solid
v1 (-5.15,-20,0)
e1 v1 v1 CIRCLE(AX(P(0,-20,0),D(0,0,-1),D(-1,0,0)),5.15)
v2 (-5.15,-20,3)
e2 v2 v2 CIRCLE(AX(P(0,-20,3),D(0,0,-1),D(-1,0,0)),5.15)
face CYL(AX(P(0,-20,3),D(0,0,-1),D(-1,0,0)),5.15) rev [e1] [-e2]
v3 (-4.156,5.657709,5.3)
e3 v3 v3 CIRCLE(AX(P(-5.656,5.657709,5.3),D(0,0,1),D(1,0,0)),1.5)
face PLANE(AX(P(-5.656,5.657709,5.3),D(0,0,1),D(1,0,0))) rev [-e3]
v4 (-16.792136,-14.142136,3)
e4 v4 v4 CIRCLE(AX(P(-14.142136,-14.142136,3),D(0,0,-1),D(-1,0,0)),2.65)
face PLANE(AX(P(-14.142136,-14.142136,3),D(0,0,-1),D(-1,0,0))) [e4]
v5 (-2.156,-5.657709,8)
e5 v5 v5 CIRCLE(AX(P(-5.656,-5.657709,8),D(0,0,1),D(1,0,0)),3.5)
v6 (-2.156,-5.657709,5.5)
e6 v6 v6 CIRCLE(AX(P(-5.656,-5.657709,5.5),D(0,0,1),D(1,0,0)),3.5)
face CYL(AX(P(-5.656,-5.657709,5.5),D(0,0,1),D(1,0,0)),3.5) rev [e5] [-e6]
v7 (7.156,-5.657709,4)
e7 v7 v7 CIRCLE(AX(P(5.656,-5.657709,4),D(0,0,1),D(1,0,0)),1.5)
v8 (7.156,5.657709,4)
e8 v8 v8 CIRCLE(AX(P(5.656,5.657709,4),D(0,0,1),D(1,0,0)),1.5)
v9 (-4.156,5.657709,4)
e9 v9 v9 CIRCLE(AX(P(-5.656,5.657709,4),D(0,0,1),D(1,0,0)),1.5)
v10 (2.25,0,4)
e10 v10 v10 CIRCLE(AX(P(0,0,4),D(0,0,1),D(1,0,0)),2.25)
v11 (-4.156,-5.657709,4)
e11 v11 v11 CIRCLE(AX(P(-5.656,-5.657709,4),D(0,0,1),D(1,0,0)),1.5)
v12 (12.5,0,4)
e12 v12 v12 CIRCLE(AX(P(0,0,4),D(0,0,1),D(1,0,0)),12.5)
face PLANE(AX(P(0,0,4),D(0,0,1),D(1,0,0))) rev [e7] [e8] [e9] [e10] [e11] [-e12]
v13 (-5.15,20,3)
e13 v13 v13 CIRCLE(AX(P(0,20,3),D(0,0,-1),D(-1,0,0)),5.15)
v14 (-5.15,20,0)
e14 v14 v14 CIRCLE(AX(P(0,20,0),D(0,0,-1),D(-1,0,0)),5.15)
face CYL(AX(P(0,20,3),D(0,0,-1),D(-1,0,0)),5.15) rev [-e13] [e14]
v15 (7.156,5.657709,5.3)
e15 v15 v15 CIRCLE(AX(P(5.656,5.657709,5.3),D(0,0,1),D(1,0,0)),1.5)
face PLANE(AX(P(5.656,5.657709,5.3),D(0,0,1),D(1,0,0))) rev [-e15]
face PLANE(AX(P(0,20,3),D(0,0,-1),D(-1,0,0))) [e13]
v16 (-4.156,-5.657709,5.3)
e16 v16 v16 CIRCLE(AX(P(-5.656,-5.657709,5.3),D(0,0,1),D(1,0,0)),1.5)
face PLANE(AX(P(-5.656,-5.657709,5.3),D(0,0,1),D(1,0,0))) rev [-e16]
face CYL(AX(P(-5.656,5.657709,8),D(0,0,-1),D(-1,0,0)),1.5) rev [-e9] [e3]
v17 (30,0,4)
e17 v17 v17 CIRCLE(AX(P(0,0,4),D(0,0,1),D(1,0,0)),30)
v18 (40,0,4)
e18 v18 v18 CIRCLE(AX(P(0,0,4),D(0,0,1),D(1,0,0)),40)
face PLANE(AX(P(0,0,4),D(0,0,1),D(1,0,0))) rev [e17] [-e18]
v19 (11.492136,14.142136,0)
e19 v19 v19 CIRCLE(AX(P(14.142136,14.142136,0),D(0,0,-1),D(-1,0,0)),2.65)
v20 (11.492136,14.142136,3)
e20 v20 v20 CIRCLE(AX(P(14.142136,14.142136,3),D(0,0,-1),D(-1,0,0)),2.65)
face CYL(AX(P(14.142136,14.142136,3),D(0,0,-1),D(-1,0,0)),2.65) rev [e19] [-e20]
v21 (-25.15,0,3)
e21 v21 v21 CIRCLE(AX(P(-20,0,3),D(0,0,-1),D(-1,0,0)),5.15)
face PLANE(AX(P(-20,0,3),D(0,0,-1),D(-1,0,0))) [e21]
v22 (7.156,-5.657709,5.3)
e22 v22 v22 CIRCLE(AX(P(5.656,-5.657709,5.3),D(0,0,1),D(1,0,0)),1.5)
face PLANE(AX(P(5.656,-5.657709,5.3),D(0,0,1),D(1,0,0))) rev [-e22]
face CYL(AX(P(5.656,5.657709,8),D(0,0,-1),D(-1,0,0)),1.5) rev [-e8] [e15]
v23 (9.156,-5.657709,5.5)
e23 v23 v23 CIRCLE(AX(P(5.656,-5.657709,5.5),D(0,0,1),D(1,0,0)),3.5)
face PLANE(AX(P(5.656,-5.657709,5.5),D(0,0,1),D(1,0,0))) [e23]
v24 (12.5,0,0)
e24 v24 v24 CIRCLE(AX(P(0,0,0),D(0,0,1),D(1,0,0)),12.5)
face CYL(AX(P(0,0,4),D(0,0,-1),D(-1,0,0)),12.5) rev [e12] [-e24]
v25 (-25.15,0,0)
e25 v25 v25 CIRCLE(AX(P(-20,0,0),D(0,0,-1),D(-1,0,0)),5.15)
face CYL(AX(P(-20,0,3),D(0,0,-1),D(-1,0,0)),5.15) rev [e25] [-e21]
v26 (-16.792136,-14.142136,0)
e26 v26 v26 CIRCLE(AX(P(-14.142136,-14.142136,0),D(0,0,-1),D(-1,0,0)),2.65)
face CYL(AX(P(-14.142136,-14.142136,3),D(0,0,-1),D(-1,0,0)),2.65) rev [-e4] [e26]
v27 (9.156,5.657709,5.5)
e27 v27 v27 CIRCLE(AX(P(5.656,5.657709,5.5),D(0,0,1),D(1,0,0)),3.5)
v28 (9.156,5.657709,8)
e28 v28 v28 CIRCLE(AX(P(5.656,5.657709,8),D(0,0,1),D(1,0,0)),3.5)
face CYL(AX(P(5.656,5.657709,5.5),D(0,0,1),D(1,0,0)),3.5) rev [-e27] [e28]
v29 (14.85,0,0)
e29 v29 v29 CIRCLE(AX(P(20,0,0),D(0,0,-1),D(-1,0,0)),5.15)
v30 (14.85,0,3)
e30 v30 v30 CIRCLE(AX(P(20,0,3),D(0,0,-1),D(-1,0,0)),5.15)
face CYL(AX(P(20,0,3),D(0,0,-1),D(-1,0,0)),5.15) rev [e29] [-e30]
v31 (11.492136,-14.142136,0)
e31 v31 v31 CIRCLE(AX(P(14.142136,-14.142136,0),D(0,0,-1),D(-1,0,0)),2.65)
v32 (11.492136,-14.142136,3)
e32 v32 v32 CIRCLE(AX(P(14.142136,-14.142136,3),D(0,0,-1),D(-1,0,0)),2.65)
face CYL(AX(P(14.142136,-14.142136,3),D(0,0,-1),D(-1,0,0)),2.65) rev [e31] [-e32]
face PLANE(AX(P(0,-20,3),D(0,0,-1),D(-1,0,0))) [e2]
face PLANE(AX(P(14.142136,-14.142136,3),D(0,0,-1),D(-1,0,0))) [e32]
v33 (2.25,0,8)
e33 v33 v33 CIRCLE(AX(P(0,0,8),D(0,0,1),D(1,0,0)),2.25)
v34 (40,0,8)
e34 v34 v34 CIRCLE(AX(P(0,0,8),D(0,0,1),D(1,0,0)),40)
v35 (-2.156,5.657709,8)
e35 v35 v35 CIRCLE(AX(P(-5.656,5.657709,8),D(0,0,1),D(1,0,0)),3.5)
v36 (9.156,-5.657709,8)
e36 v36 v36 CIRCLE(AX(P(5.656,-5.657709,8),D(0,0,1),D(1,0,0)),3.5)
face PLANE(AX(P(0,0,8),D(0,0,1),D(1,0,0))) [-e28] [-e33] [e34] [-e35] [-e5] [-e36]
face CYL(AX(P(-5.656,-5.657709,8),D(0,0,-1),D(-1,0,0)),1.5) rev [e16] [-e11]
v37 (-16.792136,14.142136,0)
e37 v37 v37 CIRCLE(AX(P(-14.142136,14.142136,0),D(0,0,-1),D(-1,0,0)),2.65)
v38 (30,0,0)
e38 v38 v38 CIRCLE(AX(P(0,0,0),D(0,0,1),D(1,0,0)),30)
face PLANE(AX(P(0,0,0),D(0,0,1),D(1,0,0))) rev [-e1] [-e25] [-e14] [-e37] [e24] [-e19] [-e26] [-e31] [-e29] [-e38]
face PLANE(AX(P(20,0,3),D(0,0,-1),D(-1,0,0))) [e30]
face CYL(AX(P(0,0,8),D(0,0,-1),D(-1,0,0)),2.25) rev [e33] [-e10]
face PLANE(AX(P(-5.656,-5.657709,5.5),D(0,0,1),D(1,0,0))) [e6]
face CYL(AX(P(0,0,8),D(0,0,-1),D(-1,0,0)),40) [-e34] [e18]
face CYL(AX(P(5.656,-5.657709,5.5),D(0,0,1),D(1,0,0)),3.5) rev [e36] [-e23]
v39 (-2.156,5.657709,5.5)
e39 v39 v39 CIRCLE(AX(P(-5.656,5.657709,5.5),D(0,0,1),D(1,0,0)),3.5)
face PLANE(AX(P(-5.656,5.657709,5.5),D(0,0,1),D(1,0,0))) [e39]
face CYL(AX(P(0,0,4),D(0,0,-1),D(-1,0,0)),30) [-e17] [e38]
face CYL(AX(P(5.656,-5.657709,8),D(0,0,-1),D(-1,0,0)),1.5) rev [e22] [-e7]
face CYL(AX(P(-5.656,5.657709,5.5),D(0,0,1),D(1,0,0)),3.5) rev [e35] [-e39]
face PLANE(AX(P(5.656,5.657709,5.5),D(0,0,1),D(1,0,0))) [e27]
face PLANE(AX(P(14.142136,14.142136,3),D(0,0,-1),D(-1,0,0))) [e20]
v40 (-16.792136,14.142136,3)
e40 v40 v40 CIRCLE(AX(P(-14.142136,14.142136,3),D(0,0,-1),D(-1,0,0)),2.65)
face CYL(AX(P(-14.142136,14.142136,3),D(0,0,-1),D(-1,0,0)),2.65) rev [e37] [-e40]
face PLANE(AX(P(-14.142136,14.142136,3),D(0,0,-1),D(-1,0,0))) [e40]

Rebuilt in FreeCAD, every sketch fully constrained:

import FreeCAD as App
import Part
import Sketcher

doc = App.newDocument("Part")
body = doc.addObject("PartDesign::Body", "Body")

# Sketch on XY plane
sketch1 = body.newObject("Sketcher::SketchObject", "Sketch")
sketch1.AttachmentSupport = (doc.getObject("XY_Plane"), [""])
sketch1.MapMode = "FlatFace"
sketch1.addGeometry(Part.Circle(App.Vector(0, 0, 0), App.Vector(0, 0, 1), 30), False)
sketch1.addGeometry(Part.Circle(App.Vector(0, 0, 0), App.Vector(0, 0, 1), 12.5), False)
sketch1.addConstraint(Sketcher.Constraint("Coincident", 0, 3, -1, 1))
sketch1.addConstraint(Sketcher.Constraint("Coincident", 1, 3, -1, 1))
sketch1.addConstraint(Sketcher.Constraint("Diameter", 0, 60.0))
sketch1.addConstraint(Sketcher.Constraint("Diameter", 1, 25.0))
pad1 = body.newObject("PartDesign::Pad", "Pad")
pad1.Profile = sketch1
pad1.Length = 4

# Sketch on XY plane
sketch2 = body.newObject("Sketcher::SketchObject", "Sketch001")
sketch2.AttachmentSupport = (doc.getObject("XY_Plane"), [""])
sketch2.MapMode = "FlatFace"
sketch2.AttachmentOffset = App.Placement(App.Vector(0, 0, 4), App.Rotation())
sketch2.addGeometry(Part.Circle(App.Vector(0, 0, 0), App.Vector(0, 0, 1), 40), False)
sketch2.addGeometry(Part.Circle(App.Vector(-5.656, -5.657709, 0), App.Vector(0, 0, 1), 1.5), False)
sketch2.addGeometry(Part.Circle(App.Vector(5.656, -5.657709, 0), App.Vector(0, 0, 1), 1.5), False)
sketch2.addGeometry(Part.Circle(App.Vector(-5.656, 5.657709, 0), App.Vector(0, 0, 1), 1.5), False)
sketch2.addGeometry(Part.Circle(App.Vector(0, 0, 0), App.Vector(0, 0, 1), 2.25), False)
sketch2.addGeometry(Part.Circle(App.Vector(5.656, 5.657709, 0), App.Vector(0, 0, 1), 1.5), False)
sketch2.addConstraint(Sketcher.Constraint("Coincident", 0, 3, -1, 1))
sketch2.addConstraint(Sketcher.Constraint("Coincident", 4, 3, -1, 1))
sketch2.addConstraint(Sketcher.Constraint("Equal", 1, 2))
sketch2.addConstraint(Sketcher.Constraint("Equal", 2, 3))
sketch2.addConstraint(Sketcher.Constraint("Equal", 3, 5))
sketch2.addConstraint(Sketcher.Constraint("Symmetric", 2, 3, 3, 3, -1, 1))
sketch2.addConstraint(Sketcher.Constraint("Symmetric", 1, 3, 5, 3, -1, 1))
sketch2.addConstraint(Sketcher.Constraint("Symmetric", 1, 3, 2, 3, -2))
sketch2.addConstraint(Sketcher.Constraint("Diameter", 0, 80.0))
sketch2.addConstraint(Sketcher.Constraint("Diameter", 1, 3.0))
sketch2.addConstraint(Sketcher.Constraint("Diameter", 4, 4.5))
sketch2.addConstraint(Sketcher.Constraint("DistanceX", 1, 3, -1, 1, 5.656))
sketch2.addConstraint(Sketcher.Constraint("DistanceY", 1, 3, -1, 1, 5.657709))
pad2 = body.newObject("PartDesign::Pad", "Pad001")
pad2.Profile = sketch2
pad2.Length = 4

# Sketch on XY plane
sketch3 = body.newObject("Sketcher::SketchObject", "Sketch002")
sketch3.AttachmentSupport = (doc.getObject("XY_Plane"), [""])
sketch3.MapMode = "FlatFace"
sketch3.AttachmentOffset = App.Placement(App.Vector(0, 0, 8), App.Rotation())
sketch3.addGeometry(Part.Circle(App.Vector(-5.656, 5.657709, 0), App.Vector(0, 0, 1), 3.5), False)
sketch3.addGeometry(Part.Circle(App.Vector(5.656, 5.657709, 0), App.Vector(0, 0, 1), 3.5), False)
sketch3.addGeometry(Part.Circle(App.Vector(5.656, -5.657709, 0), App.Vector(0, 0, 1), 3.5), False)
sketch3.addGeometry(Part.Circle(App.Vector(-5.656, -5.657709, 0), App.Vector(0, 0, 1), 3.5), False)
sketch3.addConstraint(Sketcher.Constraint("Equal", 0, 1))
sketch3.addConstraint(Sketcher.Constraint("Equal", 1, 2))
sketch3.addConstraint(Sketcher.Constraint("Equal", 2, 3))
sketch3.addConstraint(Sketcher.Constraint("Symmetric", 0, 3, 2, 3, -1, 1))
sketch3.addConstraint(Sketcher.Constraint("Symmetric", 1, 3, 3, 3, -1, 1))
sketch3.addConstraint(Sketcher.Constraint("Symmetric", 0, 3, 1, 3, -2))
sketch3.addConstraint(Sketcher.Constraint("Diameter", 0, 7.0))
sketch3.addConstraint(Sketcher.Constraint("DistanceX", 0, 3, -1, 1, 5.656))
sketch3.addConstraint(Sketcher.Constraint("DistanceY", -1, 1, 0, 3, 5.657709))
pocket1 = body.newObject("PartDesign::Pocket", "Pocket")
pocket1.Profile = sketch3
pocket1.Length = 2.5

# Sketch on XY plane
sketch4 = body.newObject("Sketcher::SketchObject", "Sketch003")
sketch4.AttachmentSupport = (doc.getObject("XY_Plane"), [""])
sketch4.MapMode = "FlatFace"
sketch4.addGeometry(Part.Circle(App.Vector(20, 0, 0), App.Vector(0, 0, 1), 5.15), False)
sketch4.addGeometry(Part.Circle(App.Vector(0, -20, 0), App.Vector(0, 0, 1), 5.15), False)
sketch4.addGeometry(Part.Circle(App.Vector(-20, 0, 0), App.Vector(0, 0, 1), 5.15), False)
sketch4.addGeometry(Part.Circle(App.Vector(0, 20, 0), App.Vector(0, 0, 1), 5.15), False)
sketch4.addGeometry(Part.Circle(App.Vector(-14.142136, 14.142136, 0), App.Vector(0, 0, 1), 2.65), False)
sketch4.addGeometry(Part.Circle(App.Vector(-14.142136, -14.142136, 0), App.Vector(0, 0, 1), 2.65), False)
sketch4.addGeometry(Part.Circle(App.Vector(14.142136, -14.142136, 0), App.Vector(0, 0, 1), 2.65), False)
sketch4.addGeometry(Part.Circle(App.Vector(14.142136, 14.142136, 0), App.Vector(0, 0, 1), 2.65), False)
sketch4.addConstraint(Sketcher.Constraint("Equal", 0, 1))
sketch4.addConstraint(Sketcher.Constraint("Equal", 1, 2))
sketch4.addConstraint(Sketcher.Constraint("Equal", 2, 3))
sketch4.addConstraint(Sketcher.Constraint("Equal", 4, 5))
sketch4.addConstraint(Sketcher.Constraint("Equal", 5, 6))
sketch4.addConstraint(Sketcher.Constraint("Equal", 6, 7))
sketch4.addConstraint(Sketcher.Constraint("Symmetric", 0, 3, 2, 3, -1, 1))
sketch4.addConstraint(Sketcher.Constraint("Symmetric", 1, 3, 3, 3, -1, 1))
sketch4.addConstraint(Sketcher.Constraint("Symmetric", 4, 3, 6, 3, -1, 1))
sketch4.addConstraint(Sketcher.Constraint("Symmetric", 5, 3, 7, 3, -1, 1))
sketch4.addConstraint(Sketcher.Constraint("Symmetric", 5, 3, 6, 3, -2))
sketch4.addConstraint(Sketcher.Constraint("PointOnObject", 0, 3, -1))
sketch4.addConstraint(Sketcher.Constraint("PointOnObject", 1, 3, -2))
sketch4.addConstraint(Sketcher.Constraint("Diameter", 0, 10.3))
sketch4.addConstraint(Sketcher.Constraint("Diameter", 4, 5.3))
sketch4.addConstraint(Sketcher.Constraint("DistanceX", -1, 1, 0, 3, 20.0))
sketch4.addConstraint(Sketcher.Constraint("DistanceY", 1, 3, -1, 1, 20.0))
sketch4.addConstraint(Sketcher.Constraint("DistanceY", 5, 3, 4, 3, 28.284271))
sketch4.addConstraint(Sketcher.Constraint("DistanceX", 5, 3, 6, 3, 28.284271))
pocket2 = body.newObject("PartDesign::Pocket", "Pocket001")
pocket2.Profile = sketch4
pocket2.Length = 3
pocket2.Reversed = True

# Sketch on XY plane
sketch5 = body.newObject("Sketcher::SketchObject", "Sketch004")
sketch5.AttachmentSupport = (doc.getObject("XY_Plane"), [""])
sketch5.MapMode = "FlatFace"
sketch5.AttachmentOffset = App.Placement(App.Vector(0, 0, 5.5), App.Rotation())
sketch5.addGeometry(Part.Circle(App.Vector(-5.656, 5.657709, 0), App.Vector(0, 0, 1), 3.5), False)
sketch5.addGeometry(Part.Circle(App.Vector(5.656, 5.657709, 0), App.Vector(0, 0, 1), 3.5), False)
sketch5.addGeometry(Part.Circle(App.Vector(-5.656, -5.657709, 0), App.Vector(0, 0, 1), 3.5), False)
sketch5.addGeometry(Part.Circle(App.Vector(5.656, -5.657709, 0), App.Vector(0, 0, 1), 3.5), False)
sketch5.addConstraint(Sketcher.Constraint("Equal", 0, 1))
sketch5.addConstraint(Sketcher.Constraint("Equal", 1, 2))
sketch5.addConstraint(Sketcher.Constraint("Equal", 2, 3))
sketch5.addConstraint(Sketcher.Constraint("Symmetric", 1, 3, 2, 3, -1, 1))
sketch5.addConstraint(Sketcher.Constraint("Symmetric", 0, 3, 3, 3, -1, 1))
sketch5.addConstraint(Sketcher.Constraint("Symmetric", 0, 3, 1, 3, -2))
sketch5.addConstraint(Sketcher.Constraint("Diameter", 0, 7.0))
sketch5.addConstraint(Sketcher.Constraint("DistanceX", 0, 3, -1, 1, 5.656))
sketch5.addConstraint(Sketcher.Constraint("DistanceY", -1, 1, 0, 3, 5.657709))
pad3 = body.newObject("PartDesign::Pad", "Pad002")
pad3.Profile = sketch5
pad3.Length = 0.2
pad3.Reversed = True

doc.recompute()
